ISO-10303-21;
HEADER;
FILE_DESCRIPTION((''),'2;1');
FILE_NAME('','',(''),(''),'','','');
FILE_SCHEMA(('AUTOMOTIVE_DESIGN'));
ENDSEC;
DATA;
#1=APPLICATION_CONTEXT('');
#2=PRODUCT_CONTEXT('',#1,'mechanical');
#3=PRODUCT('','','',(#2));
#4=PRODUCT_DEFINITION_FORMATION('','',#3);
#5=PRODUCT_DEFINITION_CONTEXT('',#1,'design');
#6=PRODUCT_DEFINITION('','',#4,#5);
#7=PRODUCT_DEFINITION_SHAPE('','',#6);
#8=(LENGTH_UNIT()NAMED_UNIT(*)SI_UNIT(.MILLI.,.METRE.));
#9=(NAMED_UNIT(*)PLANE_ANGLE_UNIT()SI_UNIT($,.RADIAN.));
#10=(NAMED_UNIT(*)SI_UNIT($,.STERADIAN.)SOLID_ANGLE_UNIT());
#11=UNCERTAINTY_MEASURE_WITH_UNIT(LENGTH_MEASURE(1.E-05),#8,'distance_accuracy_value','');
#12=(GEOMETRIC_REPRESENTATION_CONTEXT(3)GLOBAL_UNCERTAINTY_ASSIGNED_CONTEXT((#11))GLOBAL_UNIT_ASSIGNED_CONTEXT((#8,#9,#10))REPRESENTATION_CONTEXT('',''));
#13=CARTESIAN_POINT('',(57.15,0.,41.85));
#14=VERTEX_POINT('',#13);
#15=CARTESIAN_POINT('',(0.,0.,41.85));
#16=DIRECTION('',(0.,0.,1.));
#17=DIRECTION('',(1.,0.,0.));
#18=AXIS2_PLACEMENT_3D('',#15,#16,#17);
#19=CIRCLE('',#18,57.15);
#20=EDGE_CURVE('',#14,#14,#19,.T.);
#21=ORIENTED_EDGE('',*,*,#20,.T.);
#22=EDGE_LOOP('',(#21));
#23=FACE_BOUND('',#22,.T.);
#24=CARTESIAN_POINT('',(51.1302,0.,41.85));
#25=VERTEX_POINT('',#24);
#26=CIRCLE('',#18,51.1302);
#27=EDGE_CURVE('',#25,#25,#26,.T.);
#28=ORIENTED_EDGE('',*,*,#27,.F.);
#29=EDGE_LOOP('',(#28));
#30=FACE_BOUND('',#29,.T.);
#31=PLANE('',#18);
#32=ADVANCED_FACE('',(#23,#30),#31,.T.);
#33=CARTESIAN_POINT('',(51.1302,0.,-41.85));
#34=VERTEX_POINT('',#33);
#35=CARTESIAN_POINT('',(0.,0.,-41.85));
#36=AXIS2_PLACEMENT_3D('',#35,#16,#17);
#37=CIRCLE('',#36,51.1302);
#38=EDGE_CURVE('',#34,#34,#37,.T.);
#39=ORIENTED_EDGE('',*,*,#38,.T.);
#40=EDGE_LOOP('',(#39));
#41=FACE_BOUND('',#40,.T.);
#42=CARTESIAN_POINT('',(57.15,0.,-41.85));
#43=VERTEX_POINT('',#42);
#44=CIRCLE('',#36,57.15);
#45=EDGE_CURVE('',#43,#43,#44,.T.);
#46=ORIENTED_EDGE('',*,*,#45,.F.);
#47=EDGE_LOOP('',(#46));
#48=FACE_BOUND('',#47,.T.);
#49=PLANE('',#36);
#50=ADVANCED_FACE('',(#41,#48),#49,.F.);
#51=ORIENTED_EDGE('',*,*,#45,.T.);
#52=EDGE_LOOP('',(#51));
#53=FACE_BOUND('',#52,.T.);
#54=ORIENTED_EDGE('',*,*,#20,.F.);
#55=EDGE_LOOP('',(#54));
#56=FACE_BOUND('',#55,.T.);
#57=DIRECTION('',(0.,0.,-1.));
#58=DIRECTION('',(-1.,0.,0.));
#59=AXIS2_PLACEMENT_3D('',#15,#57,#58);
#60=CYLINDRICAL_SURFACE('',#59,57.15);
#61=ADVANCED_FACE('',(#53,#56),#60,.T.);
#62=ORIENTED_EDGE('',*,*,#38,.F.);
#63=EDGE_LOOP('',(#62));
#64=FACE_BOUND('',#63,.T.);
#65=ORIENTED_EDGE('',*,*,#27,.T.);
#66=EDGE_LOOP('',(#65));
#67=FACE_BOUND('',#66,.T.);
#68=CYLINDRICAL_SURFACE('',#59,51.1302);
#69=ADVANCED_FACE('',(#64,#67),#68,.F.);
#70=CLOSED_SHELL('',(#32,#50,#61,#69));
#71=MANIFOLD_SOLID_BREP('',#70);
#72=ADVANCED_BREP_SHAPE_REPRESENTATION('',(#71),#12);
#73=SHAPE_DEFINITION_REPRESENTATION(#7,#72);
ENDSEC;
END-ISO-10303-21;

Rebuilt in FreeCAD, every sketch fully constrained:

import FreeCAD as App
import Part
import Sketcher
Q = App.Units.Quantity

doc = App.newDocument("Part")
body = doc.addObject("PartDesign::Body", "Body")

sketch1 = body.newObject("Sketcher::SketchObject", "Sketch")
sketch1.AttachmentSupport = (doc.getObject("XY_Plane"), [""])
sketch1.MapMode = "FlatFace"
sketch1.addGeometry([
    Part.Circle(App.Vector(0, 0, 0), App.Vector(0, 0, 1), 57),
    Part.Circle(App.Vector(0, 0, 0), App.Vector(0, 0, 1), 51),
], False)
sketch1.addConstraint([
    Sketcher.Constraint("Coincident", 0, 3, -1, 1),
    Sketcher.Constraint("Coincident", 1, 3, -1, 1),
    Sketcher.Constraint("Diameter", 0, Q("4.5 in")),
    Sketcher.Constraint("Diameter", 1, Q("4.026 in")),
])
pad1 = body.newObject("PartDesign::Pad", "Pad")
pad1.Profile = sketch1
pad1.Length = 83.7
pad1.Midplane = True

doc.recompute()
